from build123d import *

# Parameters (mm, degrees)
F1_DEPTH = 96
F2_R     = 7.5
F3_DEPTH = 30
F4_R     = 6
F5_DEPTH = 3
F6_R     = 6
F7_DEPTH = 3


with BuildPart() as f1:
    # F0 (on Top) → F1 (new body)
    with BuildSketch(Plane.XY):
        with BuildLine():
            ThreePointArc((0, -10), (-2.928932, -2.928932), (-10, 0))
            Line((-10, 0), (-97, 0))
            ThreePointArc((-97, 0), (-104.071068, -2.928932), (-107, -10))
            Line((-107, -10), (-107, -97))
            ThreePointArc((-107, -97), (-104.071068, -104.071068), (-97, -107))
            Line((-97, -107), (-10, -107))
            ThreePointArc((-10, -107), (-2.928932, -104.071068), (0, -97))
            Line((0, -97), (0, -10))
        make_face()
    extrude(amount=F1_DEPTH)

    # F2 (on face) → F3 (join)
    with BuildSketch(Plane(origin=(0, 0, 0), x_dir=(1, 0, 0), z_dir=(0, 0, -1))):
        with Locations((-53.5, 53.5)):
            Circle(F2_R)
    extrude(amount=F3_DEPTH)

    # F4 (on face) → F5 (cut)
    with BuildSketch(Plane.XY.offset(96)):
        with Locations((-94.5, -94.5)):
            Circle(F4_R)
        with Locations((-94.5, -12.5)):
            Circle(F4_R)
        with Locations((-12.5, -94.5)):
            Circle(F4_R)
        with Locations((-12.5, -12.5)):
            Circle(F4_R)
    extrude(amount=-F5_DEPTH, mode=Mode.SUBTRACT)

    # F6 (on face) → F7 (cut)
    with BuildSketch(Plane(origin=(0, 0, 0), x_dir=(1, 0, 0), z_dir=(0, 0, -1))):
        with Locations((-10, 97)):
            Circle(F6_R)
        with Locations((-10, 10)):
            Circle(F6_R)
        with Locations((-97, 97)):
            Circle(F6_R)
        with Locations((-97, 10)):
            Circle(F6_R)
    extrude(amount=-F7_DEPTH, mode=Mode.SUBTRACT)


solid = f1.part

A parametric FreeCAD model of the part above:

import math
import FreeCAD as App
import Part
import Sketcher

doc = App.newDocument("Part")
body = doc.addObject("PartDesign::Body", "Body")

# Sketch on XY plane
sketch1 = body.newObject("Sketcher::SketchObject", "Sketch")
sketch1.AttachmentSupport = (doc.getObject("XY_Plane"), [""])
sketch1.MapMode = "FlatFace"
sketch1.addGeometry(Part.ArcOfCircle(Part.Circle(App.Vector(-9.999999, -9.999999, 0), App.Vector(0, 0, 1), 9.999999), math.radians(-0.000004), math.radians(90.000004)), False)
sketch1.addGeometry(Part.LineSegment(App.Vector(-10, 0, 0), App.Vector(-97, 0, 0)), False)
sketch1.addGeometry(Part.ArcOfCircle(Part.Circle(App.Vector(-97.000001, -9.999999, 0), App.Vector(0, 0, 1), 9.999999), math.radians(89.999996), math.radians(180.000004)), False)
sketch1.addGeometry(Part.LineSegment(App.Vector(-107, -10, 0), App.Vector(-107, -97, 0)), False)
sketch1.addGeometry(Part.ArcOfCircle(Part.Circle(App.Vector(-97.000001, -97.000001, 0), App.Vector(0, 0, 1), 9.999999), math.radians(179.999996), math.radians(270.000004)), False)
sketch1.addGeometry(Part.LineSegment(App.Vector(-97, -107, 0), App.Vector(-10, -107, 0)), False)
sketch1.addGeometry(Part.ArcOfCircle(Part.Circle(App.Vector(-9.999999, -97.000001, 0), App.Vector(0, 0, 1), 9.999999), math.radians(-90.000004), math.radians(0.000004)), False)
sketch1.addGeometry(Part.LineSegment(App.Vector(0, -97, 0), App.Vector(0, -10, 0)), False)
sketch1.addConstraint(Sketcher.Constraint("Tangent", 0, 2, 1, 1))
sketch1.addConstraint(Sketcher.Constraint("Tangent", 1, 2, 2, 1))
sketch1.addConstraint(Sketcher.Constraint("Tangent", 2, 2, 3, 1))
sketch1.addConstraint(Sketcher.Constraint("Tangent", 3, 2, 4, 1))
sketch1.addConstraint(Sketcher.Constraint("Tangent", 4, 2, 5, 1))
sketch1.addConstraint(Sketcher.Constraint("Tangent", 5, 2, 6, 1))
sketch1.addConstraint(Sketcher.Constraint("Tangent", 6, 2, 7, 1))
sketch1.addConstraint(Sketcher.Constraint("Tangent", 7, 2, 0, 1))
sketch1.addConstraint(Sketcher.Constraint("Horizontal", 1))
sketch1.addConstraint(Sketcher.Constraint("Vertical", 3))
sketch1.addConstraint(Sketcher.Constraint("Horizontal", 5))
sketch1.addConstraint(Sketcher.Constraint("Vertical", 7))
sketch1.addConstraint(Sketcher.Constraint("Equal", 0, 2))
sketch1.addConstraint(Sketcher.Constraint("Equal", 2, 4))
sketch1.addConstraint(Sketcher.Constraint("Equal", 4, 6))
sketch1.addConstraint(Sketcher.Constraint("PointOnObject", 0, 2, -1))
sketch1.addConstraint(Sketcher.Constraint("PointOnObject", 6, 2, -2))
sketch1.addConstraint(Sketcher.Constraint("Equal", 5, 3))
sketch1.addConstraint(Sketcher.Constraint("Radius", 0, 9.999999))
sketch1.addConstraint(Sketcher.Constraint("DistanceX", 1, 2, 1, 1, 87.0))
pad1 = body.newObject("PartDesign::Pad", "Pad")
pad1.Profile = sketch1
pad1.Length = 96

# Sketch on XY plane
sketch2 = body.newObject("Sketcher::SketchObject", "Sketch001")
sketch2.AttachmentSupport = (doc.getObject("XY_Plane"), [""])
sketch2.MapMode = "FlatFace"
sketch2.addGeometry(Part.Circle(App.Vector(-53.5, -53.5, 0), App.Vector(0, 0, 1), 7.5), False)
sketch2.addConstraint(Sketcher.Constraint("Diameter", 0, 15.0))
sketch2.addConstraint(Sketcher.Constraint("DistanceX", 0, 3, -1, 1, 53.5))
sketch2.addConstraint(Sketcher.Constraint("DistanceY", 0, 3, -1, 1, 53.5))
pad2 = body.newObject("PartDesign::Pad", "Pad001")
pad2.Profile = sketch2
pad2.Length = 30
pad2.Reversed = True

# Sketch on XY plane
sketch3 = body.newObject("Sketcher::SketchObject", "Sketch002")
sketch3.AttachmentSupport = (doc.getObject("XY_Plane"), [""])
sketch3.MapMode = "FlatFace"
sketch3.AttachmentOffset = App.Placement(App.Vector(0, 0, 96), App.Rotation())
sketch3.addGeometry(Part.Circle(App.Vector(-94.5, -94.5, 0), App.Vector(0, 0, 1), 6), False)
sketch3.addGeometry(Part.Circle(App.Vector(-94.5, -12.5, 0), App.Vector(0, 0, 1), 6), False)
sketch3.addGeometry(Part.Circle(App.Vector(-12.5, -94.5, 0), App.Vector(0, 0, 1), 6), False)
sketch3.addGeometry(Part.Circle(App.Vector(-12.5, -12.5, 0), App.Vector(0, 0, 1), 6), False)
sketch3.addConstraint(Sketcher.Constraint("Equal", 0, 1))
sketch3.addConstraint(Sketcher.Constraint("Equal", 1, 2))
sketch3.addConstraint(Sketcher.Constraint("Equal", 2, 3))
sketch3.addConstraint(Sketcher.Constraint("Horizontal", 0, 3, 2, 3))
sketch3.addConstraint(Sketcher.Constraint("Horizontal", 1, 3, 3, 3))
sketch3.addConstraint(Sketcher.Constraint("Vertical", 0, 3, 1, 3))
sketch3.addConstraint(Sketcher.Constraint("Vertical", 2, 3, 3, 3))
sketch3.addConstraint(Sketcher.Constraint("Diameter", 0, 12.0))
sketch3.addConstraint(Sketcher.Constraint("DistanceY", 0, 3, 1, 3, 82.0))
sketch3.addConstraint(Sketcher.Constraint("DistanceX", 0, 3, 2, 3, 82.0))
sketch3.addConstraint(Sketcher.Constraint("DistanceX", 0, 3, -1, 1, 94.5))
sketch3.addConstraint(Sketcher.Constraint("DistanceY", 0, 3, -1, 1, 94.5))
pocket1 = body.newObject("PartDesign::Pocket", "Pocket")
pocket1.Profile = sketch3
pocket1.Length = 3

# Sketch on XY plane
sketch4 = body.newObject("Sketcher::SketchObject", "Sketch003")
sketch4.AttachmentSupport = (doc.getObject("XY_Plane"), [""])
sketch4.MapMode = "FlatFace"
sketch4.addGeometry(Part.Circle(App.Vector(-10, -97, 0), App.Vector(0, 0, 1), 6), False)
sketch4.addGeometry(Part.Circle(App.Vector(-10, -10, 0), App.Vector(0, 0, 1), 6), False)
sketch4.addGeometry(Part.Circle(App.Vector(-97, -97, 0), App.Vector(0, 0, 1), 6), False)
sketch4.addGeometry(Part.Circle(App.Vector(-97, -10, 0), App.Vector(0, 0, 1), 6), False)
sketch4.addConstraint(Sketcher.Constraint("Equal", 0, 1))
sketch4.addConstraint(Sketcher.Constraint("Equal", 1, 2))
sketch4.addConstraint(Sketcher.Constraint("Equal", 2, 3))
sketch4.addConstraint(Sketcher.Constraint("Horizontal", 0, 3, 2, 3))
sketch4.addConstraint(Sketcher.Constraint("Horizontal", 1, 3, 3, 3))
sketch4.addConstraint(Sketcher.Constraint("Vertical", 0, 3, 1, 3))
sketch4.addConstraint(Sketcher.Constraint("Vertical", 2, 3, 3, 3))
sketch4.addConstraint(Sketcher.Constraint("Diameter", 0, 12.0))
sketch4.addConstraint(Sketcher.Constraint("DistanceX", 0, 3, -1, 1, 10.0))
sketch4.addConstraint(Sketcher.Constraint("DistanceY", 0, 3, -1, 1, 97.0))
sketch4.addConstraint(Sketcher.Constraint("DistanceY", 1, 3, -1, 1, 10.0))
sketch4.addConstraint(Sketcher.Constraint("DistanceX", 2, 3, -1, 1, 97.0))
pocket2 = body.newObject("PartDesign::Pocket", "Pocket001")
pocket2.Profile = sketch4
pocket2.Length = 3
pocket2.Reversed = True

doc.recompute()
